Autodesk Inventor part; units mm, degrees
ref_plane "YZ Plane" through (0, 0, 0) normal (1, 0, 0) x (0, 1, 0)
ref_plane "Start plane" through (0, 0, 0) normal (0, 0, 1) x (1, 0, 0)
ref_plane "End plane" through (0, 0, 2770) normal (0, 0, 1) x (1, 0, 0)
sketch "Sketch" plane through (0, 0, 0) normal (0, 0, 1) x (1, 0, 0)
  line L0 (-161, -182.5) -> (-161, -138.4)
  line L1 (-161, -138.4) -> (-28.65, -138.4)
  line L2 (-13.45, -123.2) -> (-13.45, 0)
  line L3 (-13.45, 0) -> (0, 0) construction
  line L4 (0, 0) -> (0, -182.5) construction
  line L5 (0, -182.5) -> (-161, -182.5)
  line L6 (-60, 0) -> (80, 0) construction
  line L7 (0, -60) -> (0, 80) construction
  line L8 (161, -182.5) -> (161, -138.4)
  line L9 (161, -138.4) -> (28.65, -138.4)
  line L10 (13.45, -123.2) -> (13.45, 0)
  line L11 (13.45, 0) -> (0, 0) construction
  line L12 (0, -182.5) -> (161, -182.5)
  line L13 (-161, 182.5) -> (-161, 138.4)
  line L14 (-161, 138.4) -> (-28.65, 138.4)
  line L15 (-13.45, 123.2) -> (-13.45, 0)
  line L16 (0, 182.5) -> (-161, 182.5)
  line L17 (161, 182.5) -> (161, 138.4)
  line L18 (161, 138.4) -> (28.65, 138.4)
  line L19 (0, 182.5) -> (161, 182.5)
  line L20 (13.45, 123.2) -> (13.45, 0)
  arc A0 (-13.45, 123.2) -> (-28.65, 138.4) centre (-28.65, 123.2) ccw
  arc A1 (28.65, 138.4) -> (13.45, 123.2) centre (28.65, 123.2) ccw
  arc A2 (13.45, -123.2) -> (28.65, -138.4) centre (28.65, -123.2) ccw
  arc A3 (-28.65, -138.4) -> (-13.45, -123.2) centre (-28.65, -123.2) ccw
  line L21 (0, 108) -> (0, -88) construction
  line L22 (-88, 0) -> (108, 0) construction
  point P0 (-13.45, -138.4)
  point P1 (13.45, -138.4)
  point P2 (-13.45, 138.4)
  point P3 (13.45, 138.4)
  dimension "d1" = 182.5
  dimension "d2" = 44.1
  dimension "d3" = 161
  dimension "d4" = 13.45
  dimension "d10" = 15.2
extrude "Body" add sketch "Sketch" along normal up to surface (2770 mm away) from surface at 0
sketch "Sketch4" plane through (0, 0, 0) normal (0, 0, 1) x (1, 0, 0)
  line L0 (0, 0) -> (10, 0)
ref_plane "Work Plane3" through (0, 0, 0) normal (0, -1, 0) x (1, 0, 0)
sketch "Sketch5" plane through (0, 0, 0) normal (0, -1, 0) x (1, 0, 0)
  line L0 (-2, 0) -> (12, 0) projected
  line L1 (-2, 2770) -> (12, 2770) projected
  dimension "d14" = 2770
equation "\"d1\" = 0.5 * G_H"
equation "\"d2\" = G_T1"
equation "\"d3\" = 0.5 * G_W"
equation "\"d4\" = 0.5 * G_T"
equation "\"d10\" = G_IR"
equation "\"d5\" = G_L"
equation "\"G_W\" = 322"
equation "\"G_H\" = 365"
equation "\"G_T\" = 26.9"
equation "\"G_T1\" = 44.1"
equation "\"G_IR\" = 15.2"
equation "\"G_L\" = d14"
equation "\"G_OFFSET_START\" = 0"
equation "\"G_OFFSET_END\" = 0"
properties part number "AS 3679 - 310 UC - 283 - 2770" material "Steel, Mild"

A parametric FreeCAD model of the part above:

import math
import FreeCAD as App
import Part
import Sketcher

V = App.Vector
Q = App.Units.Quantity

doc = App.newDocument("Part")
params = doc.addObject("Spreadsheet::Sheet", "Params")
for row, (alias, value) in enumerate([
    ("sketch1_radius", "15.2 mm"),
    ("sketch1_height", "44.1 mm"),
    ("pad1_length", "2770 mm"),
], start=1):
    params.set(f"A{row}", alias)
    params.set(f"B{row}", "=" + value)
    params.setAlias(f"B{row}", alias)

body = doc.addObject("PartDesign::Body", "Body")

sketch1 = body.newObject("Sketcher::SketchObject", "Sketch")
sketch1.AttachmentSupport = (doc.getObject("XY_Plane"), [""])
sketch1.MapMode = "FlatFace"
sketch1.addGeometry([
    Part.LineSegment(V(-161, -138, 0), V(-161, -182, 0)),
    Part.LineSegment(V(-161, -182, 0), V(161, -182, 0)),
    Part.LineSegment(V(161, -182, 0), V(161, -138, 0)),
    Part.LineSegment(V(161, -138, 0), V(29, -138, 0)),
    Part.ArcOfCircle(Part.Circle(V(29, -123, 0), V(0, 0, 1), 15), math.radians(180), math.radians(270)),
    Part.LineSegment(V(13, -123, 0), V(13, 123, 0)),
    Part.ArcOfCircle(Part.Circle(V(29, 123, 0), V(0, 0, 1), 15), math.radians(90), math.radians(180)),
    Part.LineSegment(V(29, 138, 0), V(161, 138, 0)),
    Part.LineSegment(V(161, 138, 0), V(161, 182, 0)),
    Part.LineSegment(V(161, 182, 0), V(-161, 182, 0)),
    Part.LineSegment(V(-161, 182, 0), V(-161, 138, 0)),
    Part.LineSegment(V(-161, 138, 0), V(-29, 138, 0)),
    Part.ArcOfCircle(Part.Circle(V(-29, 123, 0), V(0, 0, 1), 15), math.radians(0), math.radians(90)),
    Part.LineSegment(V(-13, 123, 0), V(-13, -123, 0)),
    Part.ArcOfCircle(Part.Circle(V(-29, -123, 0), V(0, 0, 1), 15), math.radians(-90), math.radians(0)),
    Part.LineSegment(V(-29, -138, 0), V(-161, -138, 0)),
], False)
sketch1.addConstraint([
    Sketcher.Constraint("Coincident", 0, 2, 1, 1),
    Sketcher.Constraint("Coincident", 1, 2, 2, 1),
    Sketcher.Constraint("Coincident", 2, 2, 3, 1),
    Sketcher.Constraint("Tangent", 3, 2, 4, 2),
    Sketcher.Constraint("Tangent", 4, 1, 5, 1),
    Sketcher.Constraint("Tangent", 5, 2, 6, 2),
    Sketcher.Constraint("Tangent", 6, 1, 7, 1),
    Sketcher.Constraint("Coincident", 7, 2, 8, 1),
    Sketcher.Constraint("Coincident", 8, 2, 9, 1),
    Sketcher.Constraint("Coincident", 9, 2, 10, 1),
    Sketcher.Constraint("Coincident", 10, 2, 11, 1),
    Sketcher.Constraint("Tangent", 11, 2, 12, 2),
    Sketcher.Constraint("Tangent", 12, 1, 13, 1),
    Sketcher.Constraint("Tangent", 13, 2, 14, 2),
    Sketcher.Constraint("Tangent", 14, 1, 15, 1),
    Sketcher.Constraint("Coincident", 15, 2, 0, 1),
    Sketcher.Constraint("Vertical", 0),
    Sketcher.Constraint("Horizontal", 1),
    Sketcher.Constraint("Vertical", 2),
    Sketcher.Constraint("Horizontal", 3),
    Sketcher.Constraint("Vertical", 5),
    Sketcher.Constraint("Horizontal", 7),
    Sketcher.Constraint("Vertical", 8),
    Sketcher.Constraint("Horizontal", 9),
    Sketcher.Constraint("Vertical", 10),
    Sketcher.Constraint("Horizontal", 11),
    Sketcher.Constraint("Vertical", 13),
    Sketcher.Constraint("Horizontal", 15),
    Sketcher.Constraint("Equal", 4, 6),
    Sketcher.Constraint("Equal", 6, 12),
    Sketcher.Constraint("Equal", 12, 14),
    Sketcher.Constraint("Symmetric", 4, 3, 12, 3, -1, 1),
    Sketcher.Constraint("Symmetric", 0, 2, 8, 2, -1, 1),
    Sketcher.Constraint("Symmetric", 7, 2, 10, 2, -2),
    Sketcher.Constraint("Symmetric", 2, 2, 15, 2, -2),
    Sketcher.Constraint("Radius", 4, Q("15.2 mm")),
    Sketcher.Constraint("DistanceY", 0, 2, 0, 1, Q("44.1 mm")),
    Sketcher.Constraint("DistanceX", 0, 2, -1, 1, Q("161 mm")),
    Sketcher.Constraint("DistanceY", 0, 2, -1, 1, Q("182.5 mm")),
    Sketcher.Constraint("DistanceX", -1, 1, 4, 1, Q("13.45 mm")),
])
sketch1.setExpression("Constraints[35]", "Params.sketch1_radius")
sketch1.setExpression("Constraints[36]", "Params.sketch1_height")
pad1 = body.newObject("PartDesign::Pad", "Pad")
pad1.Profile = sketch1
pad1.setExpression("Length", "Params.pad1_length")

doc.recompute()
